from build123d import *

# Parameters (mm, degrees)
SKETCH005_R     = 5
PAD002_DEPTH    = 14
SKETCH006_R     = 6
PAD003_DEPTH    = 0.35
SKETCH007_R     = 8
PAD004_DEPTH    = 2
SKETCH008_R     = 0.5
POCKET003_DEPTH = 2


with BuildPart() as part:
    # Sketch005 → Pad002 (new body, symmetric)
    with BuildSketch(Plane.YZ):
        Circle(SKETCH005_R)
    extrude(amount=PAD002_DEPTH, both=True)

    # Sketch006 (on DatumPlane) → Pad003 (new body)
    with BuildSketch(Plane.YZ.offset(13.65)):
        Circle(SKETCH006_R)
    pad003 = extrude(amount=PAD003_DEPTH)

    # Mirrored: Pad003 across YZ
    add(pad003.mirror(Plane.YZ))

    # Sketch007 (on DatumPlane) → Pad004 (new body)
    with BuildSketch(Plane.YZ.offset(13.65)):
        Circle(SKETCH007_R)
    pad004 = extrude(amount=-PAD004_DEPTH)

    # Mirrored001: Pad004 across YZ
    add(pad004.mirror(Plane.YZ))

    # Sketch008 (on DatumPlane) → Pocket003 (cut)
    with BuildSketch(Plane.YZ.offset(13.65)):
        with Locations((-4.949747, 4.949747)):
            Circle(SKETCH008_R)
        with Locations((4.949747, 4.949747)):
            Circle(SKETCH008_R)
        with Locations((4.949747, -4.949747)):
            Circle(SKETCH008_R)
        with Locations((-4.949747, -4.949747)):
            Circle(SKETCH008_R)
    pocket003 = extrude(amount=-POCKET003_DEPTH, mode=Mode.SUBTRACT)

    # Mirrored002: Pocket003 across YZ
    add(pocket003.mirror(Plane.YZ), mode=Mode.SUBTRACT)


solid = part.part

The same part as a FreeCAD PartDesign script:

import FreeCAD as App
import Part
import Sketcher

V = App.Vector

doc = App.newDocument("Part")
params = doc.addObject("Spreadsheet::Sheet", "Params")
for row, (alias, value) in enumerate([
    ("sketch1_diameter", "10 mm"),
    ("pad1_length", "28 mm"),
    ("sketch2_diameter", "12 mm"),
    ("pad2_length", "0.35 mm"),
    ("sketch3_diameter", "16 mm"),
    ("pad3_length", "2 mm"),
    ("sketch4_diameter", "1 mm"),
    ("pocket1_length", "2 mm"),
], start=1):
    params.set(f"A{row}", alias)
    params.set(f"B{row}", "=" + value)
    params.setAlias(f"B{row}", alias)

body = doc.addObject("PartDesign::Body", "Body")

sketch1 = doc.addObject("Sketcher::SketchObject", "Sketch")
body.addObject(sketch1)
sketch1.AttachmentSupport = (doc.YZ_Plane, [""])
sketch1.MapMode = "FlatFace"
sketch1.addGeometry(Part.Circle(V(0, 0, 0), V(0, 0, 1), 5), False)
sketch1.addConstraint(Sketcher.Constraint("Coincident", 0, 3, -1, 1))
sketch1.addConstraint(Sketcher.Constraint("Diameter", 0, 10.0))
sketch1.setExpression("Constraints[1]", "Params.sketch1_diameter")
pad1 = doc.addObject("PartDesign::Pad", "Pad")
body.addObject(pad1)
pad1.Profile = sketch1
pad1.setExpression("Length", "Params.pad1_length")
pad1.Midplane = True

sketch2 = doc.addObject("Sketcher::SketchObject", "Sketch001")
body.addObject(sketch2)
sketch2.AttachmentSupport = (doc.YZ_Plane, [""])
sketch2.MapMode = "FlatFace"
sketch2.AttachmentOffset = App.Placement(V(0, 0, 13.65), App.Rotation())
sketch2.addGeometry(Part.Circle(V(0, 0, 0), V(0, 0, 1), 6), False)
sketch2.addConstraint(Sketcher.Constraint("Coincident", 0, 3, -1, 1))
sketch2.addConstraint(Sketcher.Constraint("Diameter", 0, 12.0))
sketch2.setExpression("Constraints[1]", "Params.sketch2_diameter")
pad2 = doc.addObject("PartDesign::Pad", "Pad001")
body.addObject(pad2)
pad2.Profile = sketch2
pad2.setExpression("Length", "Params.pad2_length")
doc.recompute()

mirrored = doc.addObject("PartDesign::Mirrored", "Mirrored")
body.addObject(mirrored)
mirrored.Originals = [pad2]
mirrored.MirrorPlane = (doc.YZ_Plane, [""])
body.Tip = mirrored

sketch3 = doc.addObject("Sketcher::SketchObject", "Sketch002")
body.addObject(sketch3)
sketch3.AttachmentSupport = (doc.YZ_Plane, [""])
sketch3.MapMode = "FlatFace"
sketch3.AttachmentOffset = App.Placement(V(0, 0, 13.65), App.Rotation())
sketch3.addGeometry(Part.Circle(V(0, 0, 0), V(0, 0, 1), 8), False)
sketch3.addConstraint(Sketcher.Constraint("Coincident", 0, 3, -1, 1))
sketch3.addConstraint(Sketcher.Constraint("Diameter", 0, 16.0))
sketch3.setExpression("Constraints[1]", "Params.sketch3_diameter")
pad3 = doc.addObject("PartDesign::Pad", "Pad002")
body.addObject(pad3)
pad3.Profile = sketch3
pad3.setExpression("Length", "Params.pad3_length")
pad3.Reversed = True
doc.recompute()

mirrored2 = doc.addObject("PartDesign::Mirrored", "Mirrored001")
body.addObject(mirrored2)
mirrored2.Originals = [pad3]
mirrored2.MirrorPlane = (doc.YZ_Plane, [""])
body.Tip = mirrored2

sketch4 = doc.addObject("Sketcher::SketchObject", "Sketch003")
body.addObject(sketch4)
sketch4.AttachmentSupport = (doc.YZ_Plane, [""])
sketch4.MapMode = "FlatFace"
sketch4.AttachmentOffset = App.Placement(V(0, 0, 13.65), App.Rotation())
sketch4.addGeometry(Part.Circle(V(-4.949747, 4.949747, 0), V(0, 0, 1), 0.5), False)
sketch4.addGeometry(Part.Circle(V(4.949747, 4.949747, 0), V(0, 0, 1), 0.5), False)
sketch4.addGeometry(Part.Circle(V(4.949747, -4.949747, 0), V(0, 0, 1), 0.5), False)
sketch4.addGeometry(Part.Circle(V(-4.949747, -4.949747, 0), V(0, 0, 1), 0.5), False)
sketch4.addConstraint(Sketcher.Constraint("Equal", 0, 1))
sketch4.addConstraint(Sketcher.Constraint("Equal", 1, 2))
sketch4.addConstraint(Sketcher.Constraint("Equal", 2, 3))
sketch4.addConstraint(Sketcher.Constraint("Symmetric", 0, 3, 2, 3, -1, 1))
sketch4.addConstraint(Sketcher.Constraint("Symmetric", 1, 3, 3, 3, -1, 1))
sketch4.addConstraint(Sketcher.Constraint("Symmetric", 0, 3, 1, 3, -2))
sketch4.addConstraint(Sketcher.Constraint("Diameter", 0, 1.0))
sketch4.addConstraint(Sketcher.Constraint("DistanceX", 0, 3, -1, 1, 4.949747))
sketch4.addConstraint(Sketcher.Constraint("DistanceY", -1, 1, 0, 3, 4.949747))
sketch4.setExpression("Constraints[6]", "Params.sketch4_diameter")
pocket1 = doc.addObject("PartDesign::Pocket", "Pocket")
body.addObject(pocket1)
pocket1.Profile = sketch4
pocket1.setExpression("Length", "Params.pocket1_length")
doc.recompute()

mirrored3 = doc.addObject("PartDesign::Mirrored", "Mirrored002")
body.addObject(mirrored3)
mirrored3.Originals = [pocket1]
mirrored3.MirrorPlane = (doc.YZ_Plane, [""])
body.Tip = mirrored3

doc.recompute()
